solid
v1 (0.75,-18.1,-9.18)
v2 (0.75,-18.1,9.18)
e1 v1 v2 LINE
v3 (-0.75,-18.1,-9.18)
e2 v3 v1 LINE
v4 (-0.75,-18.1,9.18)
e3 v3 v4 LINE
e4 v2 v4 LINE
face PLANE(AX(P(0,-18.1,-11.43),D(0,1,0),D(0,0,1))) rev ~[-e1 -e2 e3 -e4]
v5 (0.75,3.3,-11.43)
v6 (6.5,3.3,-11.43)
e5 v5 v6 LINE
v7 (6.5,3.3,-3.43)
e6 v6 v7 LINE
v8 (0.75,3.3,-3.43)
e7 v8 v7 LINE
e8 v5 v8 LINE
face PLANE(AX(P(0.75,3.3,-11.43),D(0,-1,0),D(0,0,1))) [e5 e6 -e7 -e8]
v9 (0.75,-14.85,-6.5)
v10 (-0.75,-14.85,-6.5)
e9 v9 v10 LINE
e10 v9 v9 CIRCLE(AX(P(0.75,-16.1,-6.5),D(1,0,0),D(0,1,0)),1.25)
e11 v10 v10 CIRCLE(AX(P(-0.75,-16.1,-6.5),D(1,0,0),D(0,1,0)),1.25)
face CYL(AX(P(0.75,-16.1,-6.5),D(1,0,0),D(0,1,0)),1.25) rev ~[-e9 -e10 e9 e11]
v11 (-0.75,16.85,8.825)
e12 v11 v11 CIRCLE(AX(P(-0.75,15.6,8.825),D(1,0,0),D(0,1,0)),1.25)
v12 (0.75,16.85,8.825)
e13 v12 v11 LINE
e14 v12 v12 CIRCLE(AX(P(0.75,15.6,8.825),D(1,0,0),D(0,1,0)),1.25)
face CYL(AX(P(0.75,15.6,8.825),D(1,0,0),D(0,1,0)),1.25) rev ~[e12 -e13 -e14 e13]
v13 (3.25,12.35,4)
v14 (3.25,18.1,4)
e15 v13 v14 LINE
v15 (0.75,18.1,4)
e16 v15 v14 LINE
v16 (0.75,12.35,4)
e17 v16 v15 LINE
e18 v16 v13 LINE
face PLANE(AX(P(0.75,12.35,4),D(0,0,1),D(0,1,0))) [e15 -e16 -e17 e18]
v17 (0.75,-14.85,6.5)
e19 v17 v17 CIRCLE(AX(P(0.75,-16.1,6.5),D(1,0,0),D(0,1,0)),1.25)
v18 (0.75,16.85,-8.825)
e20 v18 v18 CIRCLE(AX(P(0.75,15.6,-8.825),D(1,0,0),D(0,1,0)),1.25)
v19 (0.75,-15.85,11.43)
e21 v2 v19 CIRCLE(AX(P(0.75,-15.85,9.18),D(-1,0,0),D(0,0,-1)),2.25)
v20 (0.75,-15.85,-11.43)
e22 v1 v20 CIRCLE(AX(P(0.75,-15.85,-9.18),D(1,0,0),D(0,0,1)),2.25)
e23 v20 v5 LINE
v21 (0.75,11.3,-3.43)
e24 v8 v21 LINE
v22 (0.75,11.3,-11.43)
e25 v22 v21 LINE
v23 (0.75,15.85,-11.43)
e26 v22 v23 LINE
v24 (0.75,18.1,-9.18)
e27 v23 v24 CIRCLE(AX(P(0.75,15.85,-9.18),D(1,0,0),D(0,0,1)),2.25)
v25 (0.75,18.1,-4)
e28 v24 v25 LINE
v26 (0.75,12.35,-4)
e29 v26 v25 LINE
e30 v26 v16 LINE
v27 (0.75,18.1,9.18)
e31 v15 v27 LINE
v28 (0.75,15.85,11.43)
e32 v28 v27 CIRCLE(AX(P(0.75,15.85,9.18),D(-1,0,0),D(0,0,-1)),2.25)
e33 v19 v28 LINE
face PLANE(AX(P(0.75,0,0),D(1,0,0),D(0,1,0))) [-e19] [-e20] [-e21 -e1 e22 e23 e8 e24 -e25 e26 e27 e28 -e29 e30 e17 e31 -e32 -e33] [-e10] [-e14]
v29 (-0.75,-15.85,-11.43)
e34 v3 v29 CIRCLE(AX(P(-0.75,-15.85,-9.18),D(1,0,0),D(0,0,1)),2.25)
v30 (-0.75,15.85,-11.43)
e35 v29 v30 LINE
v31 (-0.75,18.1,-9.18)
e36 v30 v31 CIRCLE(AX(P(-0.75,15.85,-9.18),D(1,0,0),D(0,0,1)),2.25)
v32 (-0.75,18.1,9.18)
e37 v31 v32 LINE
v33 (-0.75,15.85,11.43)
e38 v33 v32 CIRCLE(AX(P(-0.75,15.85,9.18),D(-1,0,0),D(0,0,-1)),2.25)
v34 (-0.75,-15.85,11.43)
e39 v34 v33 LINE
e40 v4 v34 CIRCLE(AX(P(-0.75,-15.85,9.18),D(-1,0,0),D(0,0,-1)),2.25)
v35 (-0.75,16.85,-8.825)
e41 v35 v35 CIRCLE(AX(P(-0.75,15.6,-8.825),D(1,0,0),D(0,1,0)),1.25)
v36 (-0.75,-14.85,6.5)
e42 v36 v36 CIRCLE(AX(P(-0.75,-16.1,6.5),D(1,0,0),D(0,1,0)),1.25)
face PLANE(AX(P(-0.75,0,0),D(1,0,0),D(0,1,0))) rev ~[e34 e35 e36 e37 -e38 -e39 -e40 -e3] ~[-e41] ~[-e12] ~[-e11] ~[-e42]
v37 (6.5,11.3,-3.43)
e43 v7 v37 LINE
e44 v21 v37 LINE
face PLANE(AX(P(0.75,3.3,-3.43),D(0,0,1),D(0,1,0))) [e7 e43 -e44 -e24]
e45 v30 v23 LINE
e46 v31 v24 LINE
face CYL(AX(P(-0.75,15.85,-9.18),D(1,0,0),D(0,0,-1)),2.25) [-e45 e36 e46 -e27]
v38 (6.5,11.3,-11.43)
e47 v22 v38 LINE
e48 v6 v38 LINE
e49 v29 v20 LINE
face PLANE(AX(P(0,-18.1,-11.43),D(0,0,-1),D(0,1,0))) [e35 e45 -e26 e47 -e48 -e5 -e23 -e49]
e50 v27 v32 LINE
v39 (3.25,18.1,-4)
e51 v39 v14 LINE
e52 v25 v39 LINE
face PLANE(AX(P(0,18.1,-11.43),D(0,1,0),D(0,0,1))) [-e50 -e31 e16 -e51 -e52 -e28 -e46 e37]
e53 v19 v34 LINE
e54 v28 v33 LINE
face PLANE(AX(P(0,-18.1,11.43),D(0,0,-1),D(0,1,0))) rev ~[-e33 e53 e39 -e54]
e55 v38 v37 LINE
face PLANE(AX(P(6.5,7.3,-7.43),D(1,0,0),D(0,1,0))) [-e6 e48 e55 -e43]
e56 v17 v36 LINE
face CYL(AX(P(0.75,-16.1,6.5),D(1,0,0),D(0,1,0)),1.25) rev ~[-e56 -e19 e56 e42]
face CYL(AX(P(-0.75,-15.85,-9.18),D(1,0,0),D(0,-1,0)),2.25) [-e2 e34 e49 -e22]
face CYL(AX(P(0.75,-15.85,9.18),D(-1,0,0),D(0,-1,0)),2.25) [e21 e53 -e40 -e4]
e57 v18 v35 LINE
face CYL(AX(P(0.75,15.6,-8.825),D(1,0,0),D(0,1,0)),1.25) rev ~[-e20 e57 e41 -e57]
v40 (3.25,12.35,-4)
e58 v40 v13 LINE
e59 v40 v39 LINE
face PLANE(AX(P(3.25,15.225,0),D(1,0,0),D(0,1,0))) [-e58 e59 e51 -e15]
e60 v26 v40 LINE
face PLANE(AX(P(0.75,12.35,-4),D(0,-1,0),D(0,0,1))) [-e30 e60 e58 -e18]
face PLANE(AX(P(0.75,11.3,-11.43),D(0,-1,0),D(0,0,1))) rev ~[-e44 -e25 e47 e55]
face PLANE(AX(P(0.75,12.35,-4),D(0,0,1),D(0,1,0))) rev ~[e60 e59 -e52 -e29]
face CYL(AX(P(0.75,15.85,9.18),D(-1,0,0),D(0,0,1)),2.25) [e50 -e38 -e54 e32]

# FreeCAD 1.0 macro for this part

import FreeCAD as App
import Part
import Sketcher

V = App.Vector
Q = App.Units.Quantity


def edges_at(feature, points):
    """Names of the edges that pass closest to the given points."""
    edges = feature.Shape.Edges
    near = lambda p: min(range(len(edges)), key=lambda i: edges[i].distToShape(Part.Vertex(*p))[0])
    return sorted({f"Edge{near(p) + 1}" for p in points})


def add_polygon(sketch, points):
    """Adds a closed chain of lines whose ends are joined by coincident constraints."""
    first, n = sketch.GeometryCount, len(points)
    for a, b in zip(points, points[1:] + points[:1]):
        sketch.addGeometry(Part.LineSegment(App.Vector(*a, 0), App.Vector(*b, 0)), False)
    for i in range(n):
        sketch.addConstraint(Sketcher.Constraint("Coincident", first + i, 2, first + (i + 1) % n, 1))

doc = App.newDocument("Part")
body = doc.addObject("PartDesign::Body", "Body")

# Sketch on YZ plane
sketch1 = doc.addObject("Sketcher::SketchObject", "Sketch")
body.addObject(sketch1)
sketch1.AttachmentSupport = (doc.YZ_Plane, [""])
sketch1.MapMode = "FlatFace"
add_polygon(sketch1, [(-18, 11), (-18, -11), (18, -11), (18, 11)])  # lines 0-3
sketch1.addConstraint([
    Sketcher.Constraint("Vertical", 0),
    Sketcher.Constraint("Horizontal", 1),
    Sketcher.Constraint("Vertical", 2),
    Sketcher.Constraint("Horizontal", 3),
    Sketcher.Constraint("Symmetric", 0, 2, 2, 2, -1, 1),
    Sketcher.Constraint("DistanceX", 1, 1, 1, 2, Q("36.2 mm")),
    Sketcher.Constraint("DistanceY", 0, 2, 0, 1, Q("22.86 mm")),
])
pad1 = doc.addObject("PartDesign::Pad", "Pad")
body.addObject(pad1)
pad1.Profile = sketch1
pad1.Length = 1.5
pad1.Midplane = True

# Sketch on YZ plane
sketch2 = doc.addObject("Sketcher::SketchObject", "Sketch001")
body.addObject(sketch2)
sketch2.AttachmentSupport = (doc.YZ_Plane, [""])
sketch2.MapMode = "FlatFace"
sketch2.AttachmentOffset = App.Placement(V(0, 0, 0.75), App.Rotation())
add_polygon(sketch2, [(3, -3), (3, -11), (11, -11), (11, -3)])  # lines 0-3
sketch2.addConstraint([
    Sketcher.Constraint("Vertical", 0),
    Sketcher.Constraint("Horizontal", 1),
    Sketcher.Constraint("Vertical", 2),
    Sketcher.Constraint("Horizontal", 3),
    Sketcher.Constraint("Equal", 3, 0),
    Sketcher.Constraint("DistanceX", 1, 1, 1, 2, Q("8 mm")),
    Sketcher.Constraint("DistanceX", -1, 1, 0, 2, Q("3.3 mm")),
    Sketcher.Constraint("DistanceY", 0, 2, -1, 1, Q("11.43 mm")),
])
pad2 = doc.addObject("PartDesign::Pad", "Pad001")
body.addObject(pad2)
pad2.Profile = sketch2
pad2.Length = 5.75

# Sketch on YZ plane
sketch3 = doc.addObject("Sketcher::SketchObject", "Sketch002")
body.addObject(sketch3)
sketch3.AttachmentSupport = (doc.YZ_Plane, [""])
sketch3.MapMode = "FlatFace"
sketch3.AttachmentOffset = App.Placement(V(0, 0, 0.75), App.Rotation())
add_polygon(sketch3, [(12, 4), (12, -4), (18, -4), (18, 4)])  # lines 0-3
sketch3.addConstraint([
    Sketcher.Constraint("Vertical", 0),
    Sketcher.Constraint("Horizontal", 1),
    Sketcher.Constraint("Vertical", 2),
    Sketcher.Constraint("Horizontal", 3),
    Sketcher.Constraint("DistanceY", 0, 2, 0, 1, Q("8 mm")),
    Sketcher.Constraint("DistanceY", 0, 2, -1, 1, Q("4 mm")),
    Sketcher.Constraint("DistanceX", 1, 1, 1, 2, Q("5.75 mm")),
    Sketcher.Constraint("DistanceX", -1, 1, 1, 2, Q("18.1 mm")),
])
pad3 = doc.addObject("PartDesign::Pad", "Pad002")
body.addObject(pad3)
pad3.Profile = sketch3
pad3.Length = 2.5
doc.recompute()

fillet = doc.addObject("PartDesign::Fillet", "Fillet")
body.addObject(fillet)
fillet.Base = (pad3, edges_at(pad3, [
    (0, -18.1, 11.43),
    (0, 18.1, 11.43),
    (0, 18.1, -11.43),
    (0, -18.1, -11.43),
]))
fillet.Radius = 2.25

# Sketch on YZ plane
sketch4 = doc.addObject("Sketcher::SketchObject", "Sketch003")
body.addObject(sketch4)
sketch4.AttachmentSupport = (doc.YZ_Plane, [""])
sketch4.MapMode = "FlatFace"
sketch4.AttachmentOffset = App.Placement(V(0, 0, 0.75), App.Rotation())
sketch4.addGeometry([
    Part.Circle(V(15.6, 8.8, 0), V(0, 0, 1), 1.2),
    Part.Circle(V(15.6, -8.8, 0), V(0, 0, 1), 1.2),
    Part.Circle(V(-16.1, 6.5, 0), V(0, 0, 1), 1.2),
    Part.Circle(V(-16.1, -6.5, 0), V(0, 0, 1), 1.2),
], False)
sketch4.addConstraint([
    Sketcher.Constraint("Equal", 0, 1),
    Sketcher.Constraint("Equal", 1, 2),
    Sketcher.Constraint("Equal", 2, 3),
    Sketcher.Constraint("Symmetric", 0, 3, 1, 3, -1),
    Sketcher.Constraint("Symmetric", 2, 3, 3, 3, -1),
    Sketcher.Constraint("Diameter", 0, Q("2.5 mm")),
    Sketcher.Constraint("DistanceY", 3, 3, 2, 3, Q("13 mm")),
    Sketcher.Constraint("DistanceX", -1, 1, 0, 3, Q("15.6 mm")),
    Sketcher.Constraint("DistanceX", 2, 3, -1, 1, Q("16.1 mm")),
    Sketcher.Constraint("DistanceY", 1, 3, 0, 3, Q("17.65 mm")),
])
pocket1 = doc.addObject("PartDesign::Pocket", "Pocket")
body.addObject(pocket1)
pocket1.Profile = sketch4
pocket1.Type = "ThroughAll"

doc.recompute()
